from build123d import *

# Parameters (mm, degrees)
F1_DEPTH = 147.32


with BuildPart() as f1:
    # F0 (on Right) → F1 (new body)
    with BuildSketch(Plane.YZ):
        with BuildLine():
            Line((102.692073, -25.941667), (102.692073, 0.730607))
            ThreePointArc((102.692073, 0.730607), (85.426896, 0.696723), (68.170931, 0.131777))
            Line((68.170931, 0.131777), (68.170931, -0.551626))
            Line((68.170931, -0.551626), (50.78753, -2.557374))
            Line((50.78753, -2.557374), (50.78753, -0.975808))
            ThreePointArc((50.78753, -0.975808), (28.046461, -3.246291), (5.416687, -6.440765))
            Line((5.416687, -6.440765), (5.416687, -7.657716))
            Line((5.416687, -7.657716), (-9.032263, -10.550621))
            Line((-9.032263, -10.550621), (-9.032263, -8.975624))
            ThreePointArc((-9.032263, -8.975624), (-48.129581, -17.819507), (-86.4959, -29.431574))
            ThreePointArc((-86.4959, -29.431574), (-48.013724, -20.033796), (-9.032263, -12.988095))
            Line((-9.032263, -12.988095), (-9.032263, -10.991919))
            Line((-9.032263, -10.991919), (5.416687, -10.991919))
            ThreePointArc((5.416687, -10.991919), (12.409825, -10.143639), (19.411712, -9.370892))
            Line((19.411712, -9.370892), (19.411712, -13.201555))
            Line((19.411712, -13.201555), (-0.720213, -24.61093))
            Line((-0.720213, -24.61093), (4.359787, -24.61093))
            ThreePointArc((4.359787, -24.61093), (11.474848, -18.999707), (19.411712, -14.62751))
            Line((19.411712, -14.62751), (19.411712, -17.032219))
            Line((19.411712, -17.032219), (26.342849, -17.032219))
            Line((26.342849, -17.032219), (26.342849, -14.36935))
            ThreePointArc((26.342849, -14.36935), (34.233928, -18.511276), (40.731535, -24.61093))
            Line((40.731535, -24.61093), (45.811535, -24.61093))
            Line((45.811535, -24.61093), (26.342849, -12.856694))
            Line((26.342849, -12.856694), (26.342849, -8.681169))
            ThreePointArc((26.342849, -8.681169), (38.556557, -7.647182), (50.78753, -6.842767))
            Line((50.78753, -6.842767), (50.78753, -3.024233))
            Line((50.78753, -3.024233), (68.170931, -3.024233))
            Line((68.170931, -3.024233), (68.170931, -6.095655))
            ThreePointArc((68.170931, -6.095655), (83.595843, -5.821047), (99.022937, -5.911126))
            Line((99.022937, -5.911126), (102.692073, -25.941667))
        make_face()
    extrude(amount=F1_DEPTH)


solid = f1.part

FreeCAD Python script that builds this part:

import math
import FreeCAD as App
import Part
import Sketcher

V = App.Vector
Q = App.Units.Quantity

doc = App.newDocument("Part")
body = doc.addObject("PartDesign::Body", "Body")

sketch1 = body.newObject("Sketcher::SketchObject", "Sketch")
sketch1.AttachmentSupport = (doc.getObject("YZ_Plane"), [""])
sketch1.MapMode = "FlatFace"
sketch1.addGeometry([
    Part.LineSegment(V(102.7, -25.9, 0), V(102.7, 0.7, 0)),
    Part.ArcOfCircle(Part.Circle(V(95.2, -560.4, 0), V(0, 0, 1), 561.2), math.radians(89.23), math.radians(92.76)),
    Part.LineSegment(V(68.2, 0.1, 0), V(68.2, -0.6, 0)),
    Part.LineSegment(V(68.2, -0.6, 0), V(50.8, -2.6, 0)),
    Part.LineSegment(V(50.8, -2.6, 0), V(50.8, -1, 0)),
    Part.ArcOfCircle(Part.Circle(V(95.2, -560.4, 0), V(0, 0, 1), 561.2), math.radians(94.53), math.radians(99.2)),
    Part.LineSegment(V(5.4, -6.4, 0), V(5.4, -7.7, 0)),
    Part.LineSegment(V(5.4, -7.7, 0), V(-9, -10.6, 0)),
    Part.LineSegment(V(-9, -10.6, 0), V(-9, -9, 0)),
    Part.ArcOfCircle(Part.Circle(V(95.2, -560.4, 0), V(0, 0, 1), 561.2), math.radians(100.7), math.radians(108.89)),
    Part.ArcOfCircle(Part.Circle(V(87.5, -658.4, 0), V(0, 0, 1), 652.6), math.radians(98.51), math.radians(105.46)),
    Part.LineSegment(V(-9, -13, 0), V(-9, -11, 0)),
    Part.LineSegment(V(-9, -11, 0), V(5.4, -11, 0)),
    Part.ArcOfCircle(Part.Circle(V(87.5, -658.4, 0), V(0, 0, 1), 652.6), math.radians(95.99), math.radians(97.23)),
    Part.LineSegment(V(19.4, -9.4, 0), V(19.4, -13.2, 0)),
    Part.LineSegment(V(19.4, -13.2, 0), V(-0.7, -24.6, 0)),
    Part.LineSegment(V(-0.7, -24.6, 0), V(4.4, -24.6, 0)),
    Part.ArcOfCircle(Part.Circle(V(42, -65, 0), V(0, 0, 1), 55.2), math.radians(114.14), math.radians(132.97)),
    Part.LineSegment(V(19.4, -14.6, 0), V(19.4, -17, 0)),
    Part.LineSegment(V(19.4, -17, 0), V(26.3, -17, 0)),
    Part.LineSegment(V(26.3, -17, 0), V(26.3, -14.4, 0)),
    Part.ArcOfCircle(Part.Circle(V(15.1, -45.4, 0), V(0, 0, 1), 33.1), math.radians(39), math.radians(70)),
    Part.LineSegment(V(40.7, -24.6, 0), V(45.8, -24.6, 0)),
    Part.LineSegment(V(45.8, -24.6, 0), V(26.3, -12.9, 0)),
    Part.LineSegment(V(26.3, -12.9, 0), V(26.3, -8.7, 0)),
    Part.ArcOfCircle(Part.Circle(V(87.5, -658.4, 0), V(0, 0, 1), 652.6), math.radians(93.22), math.radians(95.38)),
    Part.LineSegment(V(50.8, -6.8, 0), V(50.8, -3, 0)),
    Part.LineSegment(V(50.8, -3, 0), V(68.2, -3, 0)),
    Part.LineSegment(V(68.2, -3, 0), V(68.2, -6.1, 0)),
    Part.ArcOfCircle(Part.Circle(V(87.5, -658.4, 0), V(0, 0, 1), 652.6), math.radians(88.99), math.radians(91.7)),
    Part.LineSegment(V(99, -5.9, 0), V(102.7, -25.9, 0)),
], False)
sketch1.addConstraint([
    Sketcher.Constraint("Coincident", 0, 2, 1, 1),
    Sketcher.Constraint("Coincident", 1, 2, 2, 1),
    Sketcher.Constraint("Coincident", 2, 2, 3, 1),
    Sketcher.Constraint("Coincident", 3, 2, 4, 1),
    Sketcher.Constraint("Coincident", 4, 2, 5, 1),
    Sketcher.Constraint("Coincident", 5, 2, 6, 1),
    Sketcher.Constraint("Coincident", 6, 2, 7, 1),
    Sketcher.Constraint("Coincident", 7, 2, 8, 1),
    Sketcher.Constraint("Coincident", 8, 2, 9, 1),
    Sketcher.Constraint("Coincident", 9, 2, 10, 2),
    Sketcher.Constraint("Coincident", 10, 1, 11, 1),
    Sketcher.Constraint("Coincident", 11, 2, 12, 1),
    Sketcher.Constraint("Coincident", 12, 2, 13, 2),
    Sketcher.Constraint("Coincident", 13, 1, 14, 1),
    Sketcher.Constraint("Coincident", 14, 2, 15, 1),
    Sketcher.Constraint("Coincident", 15, 2, 16, 1),
    Sketcher.Constraint("Coincident", 16, 2, 17, 2),
    Sketcher.Constraint("Coincident", 17, 1, 18, 1),
    Sketcher.Constraint("Coincident", 18, 2, 19, 1),
    Sketcher.Constraint("Coincident", 19, 2, 20, 1),
    Sketcher.Constraint("Coincident", 20, 2, 21, 2),
    Sketcher.Constraint("Coincident", 21, 1, 22, 1),
    Sketcher.Constraint("Coincident", 22, 2, 23, 1),
    Sketcher.Constraint("Coincident", 23, 2, 24, 1),
    Sketcher.Constraint("Coincident", 24, 2, 25, 2),
    Sketcher.Constraint("Coincident", 25, 1, 26, 1),
    Sketcher.Constraint("Coincident", 26, 2, 27, 1),
    Sketcher.Constraint("Coincident", 27, 2, 28, 1),
    Sketcher.Constraint("Coincident", 28, 2, 29, 2),
    Sketcher.Constraint("Coincident", 29, 1, 30, 1),
    Sketcher.Constraint("Coincident", 30, 2, 0, 1),
    Sketcher.Constraint("Vertical", 0),
    Sketcher.Constraint("Vertical", 2),
    Sketcher.Constraint("Vertical", 4),
    Sketcher.Constraint("Vertical", 6),
    Sketcher.Constraint("Vertical", 8),
    Sketcher.Constraint("Vertical", 11),
    Sketcher.Constraint("Horizontal", 12),
    Sketcher.Constraint("Vertical", 14),
    Sketcher.Constraint("Horizontal", 16),
    Sketcher.Constraint("Vertical", 18),
    Sketcher.Constraint("Horizontal", 19),
    Sketcher.Constraint("Vertical", 20),
    Sketcher.Constraint("Horizontal", 22),
    Sketcher.Constraint("Vertical", 24),
    Sketcher.Constraint("Vertical", 26),
    Sketcher.Constraint("Horizontal", 27),
    Sketcher.Constraint("Vertical", 28),
    Sketcher.Constraint("Horizontal", 16, 2, 21, 1),
    Sketcher.Constraint("Vertical", 6, 2, 12, 2),
    Sketcher.Constraint("Vertical", 14, 2, 17, 1),
    Sketcher.Constraint("Vertical", 20, 2, 23, 2),
    Sketcher.Constraint("Vertical", 2, 2, 27, 2),
    Sketcher.Constraint("Equal", 16, 22),
    Sketcher.Constraint("DistanceX", 16, 1, 16, 2, Q("0.2 in")),
    Sketcher.Constraint("Radius", 1, Q("561.220068 mm")),
    Sketcher.Constraint("Radius", 17, Q("55.22629 mm")),
    Sketcher.Constraint("Radius", 29, Q("652.611888 mm")),
    Sketcher.Constraint("DistanceX", 27, 1, 27, 2, Q("17.383401 mm")),
    Sketcher.Constraint("DistanceY", 10, 3, -1, 1, Q("25.9221 in")),
    Sketcher.Constraint("Radius", 5, Q("561.220987 mm")),
    Sketcher.Constraint("Radius", 9, Q("561.219727 mm")),
    Sketcher.Constraint("Radius", 10, Q("652.611958 mm")),
    Sketcher.Constraint("Radius", 13, Q("652.615162 mm")),
    Sketcher.Constraint("Radius", 21, Q("33.052145 mm")),
    Sketcher.Constraint("Radius", 25, Q("652.608795 mm")),
    Sketcher.Constraint("DistanceX", 2, 2, 0, 2, Q("1.3591001 in")),
    Sketcher.Constraint("DistanceY", 4, 2, 2, 2, Q("0.0167001 in")),
    Sketcher.Constraint("DistanceX", 12, 1, 12, 2, Q("14.44895 mm")),
    Sketcher.Constraint("DistanceY", 6, 2, 6, 1, Q("1.216951 mm")),
    Sketcher.Constraint("DistanceY", 18, 2, 18, 1, Q("2.404709 mm")),
    Sketcher.Constraint("DistanceY", 20, 1, 20, 2, Q("2.662869 mm")),
    Sketcher.Constraint("DistanceY", 28, 2, 28, 1, Q("3.071422 mm")),
    Sketcher.Constraint("DistanceX", -1, 1, 5, 3, Q("95.160902 mm")),
    Sketcher.Constraint("DistanceX", 9, 2, -1, 1, Q("86.4959 mm")),
    Sketcher.Constraint("DistanceX", 17, 3, 13, 3, Q("45.499001 mm")),
    Sketcher.Constraint("DistanceY", 9, 3, 21, 3, Q("514.999802 mm")),
    Sketcher.Constraint("DistanceX", 25, 3, 10, 3, Q("0.0002 mm")),
    Sketcher.Constraint("DistanceX", 2, 2, 9, 3, Q("26.989801 mm")),
    Sketcher.Constraint("DistanceX", 3, 2, 2, 2, Q("17.383401 mm")),
    Sketcher.Constraint("DistanceX", 15, 2, 12, 2, Q("6.1369 mm")),
    Sketcher.Constraint("DistanceY", 18, 2, 12, 2, Q("6.0403 mm")),
    Sketcher.Constraint("DistanceY", 23, 2, 13, 1, Q("3.485802 mm")),
    Sketcher.Constraint("DistanceY", 29, 1, 2, 2, Q("5.3595 mm")),
    Sketcher.Constraint("Distance", 23, Q("22.741851 mm")),
    Sketcher.Constraint("Distance", 30, Q("20.363819 mm")),
    Sketcher.Constraint("DistanceX", 19, 1, 19, 2, Q("6.931137 mm")),
    Sketcher.Constraint("DistanceY", 0, 1, 0, 2, Q("26.672274 mm")),
    Sketcher.Constraint("DistanceY", 2, 2, 2, 1, Q("0.683403 mm")),
    Sketcher.Constraint("DistanceY", 4, 1, 4, 2, Q("1.581566 mm")),
    Sketcher.Constraint("DistanceY", 8, 1, 8, 2, Q("1.574997 mm")),
    Sketcher.Constraint("DistanceY", 11, 1, 11, 2, Q("1.996176 mm")),
    Sketcher.Constraint("DistanceY", 14, 2, 14, 1, Q("3.830663 mm")),
    Sketcher.Constraint("DistanceY", 24, 1, 24, 2, Q("4.175525 mm")),
    Sketcher.Constraint("DistanceY", 26, 1, 26, 2, Q("3.818534 mm")),
    Sketcher.Constraint("DistanceX", -1, 1, 1, 3, Q("95.160782 mm")),
    Sketcher.Constraint("DistanceY", 9, 3, -1, 1, Q("560.438589 mm")),
    Sketcher.Constraint("DistanceX", -1, 1, 10, 3, Q("87.499048 mm")),
    Sketcher.Constraint("DistanceY", 13, 3, -1, 1, Q("658.424521 mm")),
    Sketcher.Constraint("DistanceY", 17, 3, -1, 1, Q("65.02288 mm")),
    Sketcher.Constraint("DistanceX", -1, 1, 29, 3, Q("87.499112 mm")),
    Sketcher.Constraint("DistanceY", 7, 2, -1, 1, Q("10.550621 mm")),
])
pad1 = body.newObject("PartDesign::Pad", "Pad")
pad1.Profile = sketch1
pad1.Length = Q("5.8 in")

doc.recompute()
